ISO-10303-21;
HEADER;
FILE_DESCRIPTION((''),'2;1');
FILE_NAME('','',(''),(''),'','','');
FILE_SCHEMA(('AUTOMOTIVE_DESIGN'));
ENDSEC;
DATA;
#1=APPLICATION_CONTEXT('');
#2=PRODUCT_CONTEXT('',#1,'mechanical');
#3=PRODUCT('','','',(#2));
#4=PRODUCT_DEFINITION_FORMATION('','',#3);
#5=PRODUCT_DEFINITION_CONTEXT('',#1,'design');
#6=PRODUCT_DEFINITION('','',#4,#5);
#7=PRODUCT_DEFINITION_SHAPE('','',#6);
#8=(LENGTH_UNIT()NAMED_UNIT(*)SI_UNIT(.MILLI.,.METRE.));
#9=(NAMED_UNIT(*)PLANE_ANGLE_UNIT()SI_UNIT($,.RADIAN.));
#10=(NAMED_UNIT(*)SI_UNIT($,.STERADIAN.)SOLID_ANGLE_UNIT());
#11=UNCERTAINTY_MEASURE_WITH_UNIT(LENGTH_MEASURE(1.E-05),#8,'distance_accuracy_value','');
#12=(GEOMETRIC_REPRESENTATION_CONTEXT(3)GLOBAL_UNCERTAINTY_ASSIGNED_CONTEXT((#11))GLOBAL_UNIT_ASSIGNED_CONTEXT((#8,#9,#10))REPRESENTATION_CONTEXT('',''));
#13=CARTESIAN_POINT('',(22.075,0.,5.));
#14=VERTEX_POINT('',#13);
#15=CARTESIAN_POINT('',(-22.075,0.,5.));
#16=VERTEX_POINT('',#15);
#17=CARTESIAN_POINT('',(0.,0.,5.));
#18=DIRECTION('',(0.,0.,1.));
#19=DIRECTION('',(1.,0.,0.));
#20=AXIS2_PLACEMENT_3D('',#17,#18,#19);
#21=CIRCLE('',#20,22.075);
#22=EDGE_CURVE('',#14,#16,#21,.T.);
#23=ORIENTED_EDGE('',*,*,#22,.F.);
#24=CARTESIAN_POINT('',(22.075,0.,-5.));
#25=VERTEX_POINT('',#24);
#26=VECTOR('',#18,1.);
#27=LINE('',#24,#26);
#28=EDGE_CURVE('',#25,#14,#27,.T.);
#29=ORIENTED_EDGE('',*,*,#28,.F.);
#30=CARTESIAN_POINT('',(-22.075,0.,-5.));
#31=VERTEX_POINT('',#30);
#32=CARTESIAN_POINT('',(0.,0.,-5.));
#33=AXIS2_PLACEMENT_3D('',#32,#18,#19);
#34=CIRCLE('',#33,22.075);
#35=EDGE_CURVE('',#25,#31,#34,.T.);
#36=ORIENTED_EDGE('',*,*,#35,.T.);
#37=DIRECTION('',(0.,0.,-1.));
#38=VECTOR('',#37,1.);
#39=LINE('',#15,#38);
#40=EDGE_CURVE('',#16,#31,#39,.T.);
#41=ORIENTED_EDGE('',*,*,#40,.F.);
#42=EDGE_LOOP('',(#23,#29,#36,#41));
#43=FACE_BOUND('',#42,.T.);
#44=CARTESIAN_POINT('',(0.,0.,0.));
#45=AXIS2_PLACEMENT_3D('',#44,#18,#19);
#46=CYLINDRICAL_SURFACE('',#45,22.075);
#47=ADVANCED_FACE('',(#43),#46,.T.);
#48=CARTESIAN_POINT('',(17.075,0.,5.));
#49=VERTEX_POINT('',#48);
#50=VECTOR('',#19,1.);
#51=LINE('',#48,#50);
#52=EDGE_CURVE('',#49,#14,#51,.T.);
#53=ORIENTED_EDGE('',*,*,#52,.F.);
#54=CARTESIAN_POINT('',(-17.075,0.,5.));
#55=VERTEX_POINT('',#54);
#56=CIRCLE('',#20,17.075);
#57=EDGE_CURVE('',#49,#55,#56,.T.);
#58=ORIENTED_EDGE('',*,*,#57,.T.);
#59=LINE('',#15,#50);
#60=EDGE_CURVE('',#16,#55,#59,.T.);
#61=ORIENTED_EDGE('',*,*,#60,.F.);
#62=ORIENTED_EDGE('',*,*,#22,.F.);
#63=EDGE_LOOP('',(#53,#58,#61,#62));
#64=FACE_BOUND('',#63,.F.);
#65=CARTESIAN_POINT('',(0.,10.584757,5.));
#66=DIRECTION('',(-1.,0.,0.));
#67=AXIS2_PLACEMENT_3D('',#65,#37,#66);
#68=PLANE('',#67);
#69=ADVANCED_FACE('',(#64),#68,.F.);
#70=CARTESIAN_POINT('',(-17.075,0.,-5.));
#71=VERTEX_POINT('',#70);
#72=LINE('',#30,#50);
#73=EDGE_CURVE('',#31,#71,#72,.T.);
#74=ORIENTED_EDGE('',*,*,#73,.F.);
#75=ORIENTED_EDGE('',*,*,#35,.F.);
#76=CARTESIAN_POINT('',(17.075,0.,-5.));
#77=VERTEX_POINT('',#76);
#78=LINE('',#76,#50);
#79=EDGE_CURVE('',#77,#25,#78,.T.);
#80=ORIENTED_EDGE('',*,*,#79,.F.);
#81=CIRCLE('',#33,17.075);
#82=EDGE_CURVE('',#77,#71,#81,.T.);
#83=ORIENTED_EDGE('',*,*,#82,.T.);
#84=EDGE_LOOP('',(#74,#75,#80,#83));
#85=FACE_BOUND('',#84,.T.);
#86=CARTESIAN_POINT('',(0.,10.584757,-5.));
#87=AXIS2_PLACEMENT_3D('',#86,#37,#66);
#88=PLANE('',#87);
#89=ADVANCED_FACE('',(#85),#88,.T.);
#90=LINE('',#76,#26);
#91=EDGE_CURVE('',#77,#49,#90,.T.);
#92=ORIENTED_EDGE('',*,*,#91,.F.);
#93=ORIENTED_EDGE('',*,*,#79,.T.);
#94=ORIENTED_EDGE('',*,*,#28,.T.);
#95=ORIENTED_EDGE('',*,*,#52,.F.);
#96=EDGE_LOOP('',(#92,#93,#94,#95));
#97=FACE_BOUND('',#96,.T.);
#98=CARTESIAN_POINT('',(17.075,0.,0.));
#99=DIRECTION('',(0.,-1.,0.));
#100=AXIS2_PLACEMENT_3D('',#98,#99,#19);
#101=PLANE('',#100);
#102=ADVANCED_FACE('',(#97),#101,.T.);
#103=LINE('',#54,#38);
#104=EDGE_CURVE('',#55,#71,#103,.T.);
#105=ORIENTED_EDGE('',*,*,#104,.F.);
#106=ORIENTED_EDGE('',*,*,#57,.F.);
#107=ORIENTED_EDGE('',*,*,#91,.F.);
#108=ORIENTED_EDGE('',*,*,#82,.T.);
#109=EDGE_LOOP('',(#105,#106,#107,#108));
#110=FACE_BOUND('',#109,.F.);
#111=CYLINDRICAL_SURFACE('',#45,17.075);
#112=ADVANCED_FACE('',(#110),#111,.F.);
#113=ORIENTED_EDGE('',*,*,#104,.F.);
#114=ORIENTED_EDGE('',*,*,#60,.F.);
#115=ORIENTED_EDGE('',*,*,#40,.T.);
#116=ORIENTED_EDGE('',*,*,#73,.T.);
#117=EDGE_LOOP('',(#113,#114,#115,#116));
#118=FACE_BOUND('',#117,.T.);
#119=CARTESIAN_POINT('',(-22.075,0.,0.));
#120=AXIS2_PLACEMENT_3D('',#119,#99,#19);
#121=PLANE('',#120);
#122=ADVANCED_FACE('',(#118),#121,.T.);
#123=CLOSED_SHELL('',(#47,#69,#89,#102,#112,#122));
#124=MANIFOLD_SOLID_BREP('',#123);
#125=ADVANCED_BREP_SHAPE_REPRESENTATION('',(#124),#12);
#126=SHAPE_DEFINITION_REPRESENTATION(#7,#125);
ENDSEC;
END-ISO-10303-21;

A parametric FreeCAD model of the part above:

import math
import FreeCAD as App
import Part
import Sketcher

V = App.Vector

doc = App.newDocument("Part")
body = doc.addObject("PartDesign::Body", "Body")

# Sketch on XY plane
sketch1 = body.newObject("Sketcher::SketchObject", "Sketch")
sketch1.AttachmentSupport = (doc.getObject("XY_Plane"), [""])
sketch1.MapMode = "FlatFace"
sketch1.addGeometry([
    Part.ArcOfCircle(Part.Circle(V(0, 0, 0), V(0, 0, 1), 17.075), math.radians(0), math.radians(180)),
    Part.LineSegment(V(17.075, 0, 0), V(22.075, 0, 0)),
    Part.ArcOfCircle(Part.Circle(V(0, 0, 0), V(0, 0, 1), 22.075), math.radians(0), math.radians(180)),
    Part.LineSegment(V(-22.075, 0, 0), V(-17.075, 0, 0)),
], False)
sketch1.addConstraint([
    Sketcher.Constraint("Coincident", 0, 1, 1, 1),
    Sketcher.Constraint("Coincident", 1, 2, 2, 1),
    Sketcher.Constraint("Coincident", 2, 2, 3, 1),
    Sketcher.Constraint("Coincident", 3, 2, 0, 2),
    Sketcher.Constraint("Horizontal", 1),
    Sketcher.Constraint("Horizontal", 3),
    Sketcher.Constraint("Coincident", 0, 3, -1, 1),
    Sketcher.Constraint("Coincident", 2, 3, -1, 1),
    Sketcher.Constraint("PointOnObject", 0, 1, -1),
    Sketcher.Constraint("PointOnObject", 2, 2, -1),
    Sketcher.Constraint("DistanceX", 1, 1, 1, 2, 5.0),
    Sketcher.Constraint("Radius", 0, 17.075),
])
pad1 = body.newObject("PartDesign::Pad", "Pad")
pad1.Profile = sketch1
pad1.Length = 10
pad1.Midplane = True

doc.recompute()
